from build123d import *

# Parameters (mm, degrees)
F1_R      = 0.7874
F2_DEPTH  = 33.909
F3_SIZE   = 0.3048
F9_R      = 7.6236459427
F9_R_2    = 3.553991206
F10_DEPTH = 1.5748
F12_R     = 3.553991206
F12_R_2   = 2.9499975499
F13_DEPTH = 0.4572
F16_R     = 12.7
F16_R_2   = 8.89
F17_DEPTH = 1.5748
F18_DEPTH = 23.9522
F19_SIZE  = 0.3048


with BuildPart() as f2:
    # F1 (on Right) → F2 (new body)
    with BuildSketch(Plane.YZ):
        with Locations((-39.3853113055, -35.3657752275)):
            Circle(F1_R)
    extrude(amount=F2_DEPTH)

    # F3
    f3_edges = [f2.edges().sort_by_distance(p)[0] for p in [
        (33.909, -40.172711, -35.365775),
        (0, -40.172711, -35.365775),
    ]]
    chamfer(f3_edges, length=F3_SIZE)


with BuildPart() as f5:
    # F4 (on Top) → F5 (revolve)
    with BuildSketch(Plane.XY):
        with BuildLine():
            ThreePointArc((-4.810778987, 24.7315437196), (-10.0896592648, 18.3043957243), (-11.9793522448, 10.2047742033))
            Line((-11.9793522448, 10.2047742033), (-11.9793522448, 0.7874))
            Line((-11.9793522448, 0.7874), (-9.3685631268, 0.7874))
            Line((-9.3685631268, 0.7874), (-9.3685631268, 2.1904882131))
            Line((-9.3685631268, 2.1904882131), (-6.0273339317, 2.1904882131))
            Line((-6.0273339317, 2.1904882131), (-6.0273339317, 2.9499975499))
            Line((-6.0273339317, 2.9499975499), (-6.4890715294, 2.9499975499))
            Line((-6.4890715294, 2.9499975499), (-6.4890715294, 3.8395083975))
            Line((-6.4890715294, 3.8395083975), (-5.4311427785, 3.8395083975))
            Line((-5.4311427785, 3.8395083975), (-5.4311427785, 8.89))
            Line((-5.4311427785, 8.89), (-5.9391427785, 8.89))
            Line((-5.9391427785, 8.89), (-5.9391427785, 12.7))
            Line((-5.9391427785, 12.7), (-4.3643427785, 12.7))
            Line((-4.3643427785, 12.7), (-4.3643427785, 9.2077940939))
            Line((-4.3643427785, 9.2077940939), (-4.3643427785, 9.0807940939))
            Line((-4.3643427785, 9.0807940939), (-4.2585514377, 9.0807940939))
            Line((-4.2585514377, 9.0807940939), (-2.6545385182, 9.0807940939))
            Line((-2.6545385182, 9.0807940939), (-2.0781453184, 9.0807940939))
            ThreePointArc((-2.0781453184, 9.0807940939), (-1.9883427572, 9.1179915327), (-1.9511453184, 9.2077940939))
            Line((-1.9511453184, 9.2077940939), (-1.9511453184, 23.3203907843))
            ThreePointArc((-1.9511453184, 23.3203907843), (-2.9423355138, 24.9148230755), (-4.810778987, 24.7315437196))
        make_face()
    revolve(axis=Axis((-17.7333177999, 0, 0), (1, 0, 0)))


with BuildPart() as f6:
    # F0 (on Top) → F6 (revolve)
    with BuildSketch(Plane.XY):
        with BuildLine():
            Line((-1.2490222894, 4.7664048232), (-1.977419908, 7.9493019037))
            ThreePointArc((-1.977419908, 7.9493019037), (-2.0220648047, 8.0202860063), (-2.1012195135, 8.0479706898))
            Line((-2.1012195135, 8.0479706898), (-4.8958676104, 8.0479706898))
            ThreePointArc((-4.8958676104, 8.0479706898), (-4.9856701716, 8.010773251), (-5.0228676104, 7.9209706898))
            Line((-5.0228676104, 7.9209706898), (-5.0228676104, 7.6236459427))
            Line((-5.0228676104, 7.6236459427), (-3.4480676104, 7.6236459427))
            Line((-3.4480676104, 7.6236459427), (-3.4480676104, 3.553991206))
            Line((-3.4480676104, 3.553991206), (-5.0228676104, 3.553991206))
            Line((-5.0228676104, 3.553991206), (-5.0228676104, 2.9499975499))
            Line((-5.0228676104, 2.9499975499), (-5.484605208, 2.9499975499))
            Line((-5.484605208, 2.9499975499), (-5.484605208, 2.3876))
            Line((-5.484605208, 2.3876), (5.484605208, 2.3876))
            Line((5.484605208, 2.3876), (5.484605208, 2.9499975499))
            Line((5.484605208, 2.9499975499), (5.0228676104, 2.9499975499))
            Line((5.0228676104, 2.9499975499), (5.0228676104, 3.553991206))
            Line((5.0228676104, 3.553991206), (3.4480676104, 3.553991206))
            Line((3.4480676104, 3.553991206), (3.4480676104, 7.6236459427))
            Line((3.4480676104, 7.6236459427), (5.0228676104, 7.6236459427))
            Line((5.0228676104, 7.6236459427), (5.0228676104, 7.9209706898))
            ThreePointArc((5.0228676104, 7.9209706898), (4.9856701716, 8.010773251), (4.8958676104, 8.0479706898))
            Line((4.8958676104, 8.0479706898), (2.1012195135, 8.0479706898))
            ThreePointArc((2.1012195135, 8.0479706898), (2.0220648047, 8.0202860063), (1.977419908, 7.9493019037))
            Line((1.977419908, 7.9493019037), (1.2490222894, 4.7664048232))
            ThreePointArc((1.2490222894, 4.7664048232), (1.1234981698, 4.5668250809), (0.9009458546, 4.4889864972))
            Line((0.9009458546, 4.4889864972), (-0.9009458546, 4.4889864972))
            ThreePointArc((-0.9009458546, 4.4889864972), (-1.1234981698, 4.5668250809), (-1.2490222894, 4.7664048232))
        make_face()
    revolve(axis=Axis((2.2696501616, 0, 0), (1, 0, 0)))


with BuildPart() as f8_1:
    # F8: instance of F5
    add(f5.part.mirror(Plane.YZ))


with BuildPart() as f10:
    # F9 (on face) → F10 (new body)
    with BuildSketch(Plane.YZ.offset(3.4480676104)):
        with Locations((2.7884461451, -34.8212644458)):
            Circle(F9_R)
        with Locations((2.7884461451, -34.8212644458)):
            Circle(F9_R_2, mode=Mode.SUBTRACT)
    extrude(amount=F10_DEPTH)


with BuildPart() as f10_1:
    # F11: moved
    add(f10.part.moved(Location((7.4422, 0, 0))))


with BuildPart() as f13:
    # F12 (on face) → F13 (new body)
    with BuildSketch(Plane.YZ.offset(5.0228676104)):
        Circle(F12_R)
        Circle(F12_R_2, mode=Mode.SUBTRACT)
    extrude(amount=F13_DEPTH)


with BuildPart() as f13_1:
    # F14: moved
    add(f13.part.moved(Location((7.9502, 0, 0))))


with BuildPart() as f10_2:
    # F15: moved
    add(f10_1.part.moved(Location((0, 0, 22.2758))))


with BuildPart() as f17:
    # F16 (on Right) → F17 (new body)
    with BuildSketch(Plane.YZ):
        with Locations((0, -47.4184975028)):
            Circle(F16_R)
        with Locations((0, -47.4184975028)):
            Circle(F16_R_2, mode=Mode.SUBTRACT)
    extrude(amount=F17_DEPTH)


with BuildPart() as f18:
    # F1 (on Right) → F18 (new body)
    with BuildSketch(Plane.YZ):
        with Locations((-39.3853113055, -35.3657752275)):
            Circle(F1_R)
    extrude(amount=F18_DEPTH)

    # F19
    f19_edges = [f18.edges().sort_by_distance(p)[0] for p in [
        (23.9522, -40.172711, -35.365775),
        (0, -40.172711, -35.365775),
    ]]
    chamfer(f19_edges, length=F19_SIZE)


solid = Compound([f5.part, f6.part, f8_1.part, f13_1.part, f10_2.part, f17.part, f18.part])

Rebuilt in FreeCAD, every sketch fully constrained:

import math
import FreeCAD as App
import Part
import Sketcher

V = App.Vector
Q = App.Units.Quantity


def edges_at(feature, points):
    """Names of the edges that pass closest to the given points."""
    edges = feature.Shape.Edges
    near = lambda p: min(range(len(edges)), key=lambda i: edges[i].distToShape(Part.Vertex(*p))[0])
    return sorted({f"Edge{near(p) + 1}" for p in points})

doc = App.newDocument("Part")
body = doc.addObject("PartDesign::Body", "Body")

# Sketch on YZ plane
sketch1 = body.newObject("Sketcher::SketchObject", "Sketch")
sketch1.AttachmentSupport = (doc.getObject("YZ_Plane"), [""])
sketch1.MapMode = "FlatFace"
sketch1.addGeometry(Part.Circle(V(-39.4, -35.4, 0), V(0, 0, 1), 0.8), False)
sketch1.addConstraint([
    Sketcher.Constraint("Diameter", 0, Q("0.062 in")),
    Sketcher.Constraint("DistanceX", 0, 3, -1, 1, 39.385311),
    Sketcher.Constraint("DistanceY", 0, 3, -1, 1, 35.365775),
])
pad1 = body.newObject("PartDesign::Pad", "Pad")
pad1.Profile = sketch1
pad1.Length = Q("1.335 in")
doc.recompute()

chamfer = body.newObject("PartDesign::Chamfer", "Chamfer")
chamfer.Base = (pad1, edges_at(pad1, [(33.909, -40.173, -35.366), (0, -40.173, -35.366)]))
chamfer.Size = Q("0.012 in")
body2 = doc.addObject("PartDesign::Body", "Body001")

# Sketch on XY plane
sketch2 = body2.newObject("Sketcher::SketchObject", "Sketch001")
sketch2.AttachmentSupport = (doc.getObject("XY_Plane001"), [""])
sketch2.MapMode = "FlatFace"
sketch2.addGeometry([
    Part.ArcOfCircle(Part.Circle(V(6.32, 10.2, 0), V(0, 0, 1), 18.3), math.radians(127), math.radians(180)),  # 0
    Part.LineSegment(V(-11.98, 10.2, 0), V(-11.98, 0.79, 0)),  # 1
    Part.LineSegment(V(-11.98, 0.79, 0), V(-9.37, 0.79, 0)),  # 2
    Part.LineSegment(V(-9.37, 0.79, 0), V(-9.37, 2.19, 0)),  # 3
    Part.LineSegment(V(-9.37, 2.19, 0), V(-6.03, 2.19, 0)),  # 4
    Part.LineSegment(V(-6.03, 2.19, 0), V(-6.03, 2.95, 0)),  # 5
    Part.LineSegment(V(-6.03, 2.95, 0), V(-6.49, 2.95, 0)),  # 6
    Part.LineSegment(V(-6.49, 2.95, 0), V(-6.49, 3.84, 0)),  # 7
    Part.LineSegment(V(-6.49, 3.84, 0), V(-5.43, 3.84, 0)),  # 8
    Part.LineSegment(V(-5.43, 3.84, 0), V(-5.43, 8.89, 0)),  # 9
    Part.LineSegment(V(-5.43, 8.89, 0), V(-5.94, 8.89, 0)),  # 10
    Part.LineSegment(V(-5.94, 8.89, 0), V(-5.94, 12.7, 0)),  # 11
    Part.LineSegment(V(-5.94, 12.7, 0), V(-4.36, 12.7, 0)),  # 12
    Part.LineSegment(V(-4.36, 12.7, 0), V(-4.36, 9.08, 0)),  # 13
    Part.LineSegment(V(-4.36, 9.08, 0), V(-2.08, 9.08, 0)),  # 14
    Part.ArcOfCircle(Part.Circle(V(-2.08, 9.21, 0), V(0, 0, 1), 0.13), math.radians(-90), math.radians(0)),  # 15
    Part.LineSegment(V(-1.95, 9.21, 0), V(-1.95, 23.32, 0)),  # 16
    Part.ArcOfCircle(Part.Circle(V(-3.73, 23.32, 0), V(0, 0, 1), 1.78), math.radians(0), math.radians(127)),  # 17
], False)
sketch2.addConstraint([
    Sketcher.Constraint("Tangent", 0, 2, 1, 1),
    Sketcher.Constraint("Coincident", 1, 2, 2, 1),
    Sketcher.Constraint("Coincident", 2, 2, 3, 1),
    Sketcher.Constraint("Coincident", 3, 2, 4, 1),
    Sketcher.Constraint("Coincident", 4, 2, 5, 1),
    Sketcher.Constraint("Coincident", 5, 2, 6, 1),
    Sketcher.Constraint("Coincident", 6, 2, 7, 1),
    Sketcher.Constraint("Coincident", 7, 2, 8, 1),
    Sketcher.Constraint("Coincident", 8, 2, 9, 1),
    Sketcher.Constraint("Coincident", 9, 2, 10, 1),
    Sketcher.Constraint("Coincident", 10, 2, 11, 1),
    Sketcher.Constraint("Coincident", 11, 2, 12, 1),
    Sketcher.Constraint("Coincident", 12, 2, 13, 1),
    Sketcher.Constraint("Coincident", 13, 2, 14, 1),
    Sketcher.Constraint("Tangent", 14, 2, 15, 1),
    Sketcher.Constraint("Tangent", 15, 2, 16, 1),
    Sketcher.Constraint("Tangent", 16, 2, 17, 1),
    Sketcher.Constraint("Tangent", 17, 2, 0, 1),
    Sketcher.Constraint("Vertical", 1),
    Sketcher.Constraint("Horizontal", 2),
    Sketcher.Constraint("Vertical", 3),
    Sketcher.Constraint("Horizontal", 4),
    Sketcher.Constraint("Vertical", 5),
    Sketcher.Constraint("Horizontal", 6),
    Sketcher.Constraint("Vertical", 7),
    Sketcher.Constraint("Horizontal", 8),
    Sketcher.Constraint("Vertical", 9),
    Sketcher.Constraint("Horizontal", 10),
    Sketcher.Constraint("Vertical", 11),
    Sketcher.Constraint("Horizontal", 12),
    Sketcher.Constraint("Vertical", 13),
    Sketcher.Constraint("Horizontal", 14),
    Sketcher.Constraint("Vertical", 16),
    Sketcher.Constraint("Radius", 17, Q("0.07 in")),
    Sketcher.Constraint("Radius", 15, Q("0.005 in")),
    Sketcher.Constraint("DistanceX", 10, 2, 10, 1, Q("0.02 in")),
    Sketcher.Constraint("DistanceY", 11, 1, 11, 2, Q("0.15 in")),
    Sketcher.Constraint("DistanceY", -1, 1, 11, 2, Q("0.5 in")),
    Sketcher.Constraint("DistanceX", 12, 1, 12, 2, Q("0.062 in")),
    Sketcher.Constraint("DistanceY", -1, 1, 1, 2, Q("0.031 in")),
    Sketcher.Constraint("Radius", 0, 18.303187),
    Sketcher.Constraint("DistanceX", 2, 1, 2, 2, 2.610789),
    Sketcher.Constraint("DistanceX", 4, 1, 4, 2, 3.341229),
    Sketcher.Constraint("DistanceX", 8, 1, 8, 2, 1.057929),
    Sketcher.Constraint("DistanceY", 3, 1, 3, 2, 1.403088),
    Sketcher.Constraint("DistanceY", 5, 1, 5, 2, 0.759509),
    Sketcher.Constraint("DistanceY", 7, 1, 7, 2, 0.889511),
    Sketcher.Constraint("DistanceX", 6, 2, 6, 1, 0.461738),
    Sketcher.Constraint("DistanceX", 14, 1, 14, 2, 2.286197),
    Sketcher.Constraint("DistanceY", 1, 2, 1, 1, 9.417374),
    Sketcher.Constraint("DistanceY", 13, 2, 13, 1, 3.619206),
    Sketcher.Constraint("DistanceX", 6, 2, -1, 1, 6.489072),
])
revolution = body2.newObject("PartDesign::Revolution", "Revolution")
revolution.Profile = sketch2
revolution.ReferenceAxis = (sketch2, ["H_Axis"])
revolution.Angle = 360
body3 = doc.addObject("PartDesign::Body", "Body002")

# Sketch on XY plane
sketch3 = body3.newObject("Sketcher::SketchObject", "Sketch002")
sketch3.AttachmentSupport = (doc.getObject("XY_Plane002"), [""])
sketch3.MapMode = "FlatFace"
sketch3.addGeometry([
    Part.LineSegment(V(-1.25, 4.77, 0), V(-1.98, 7.95, 0)),  # 0
    Part.ArcOfCircle(Part.Circle(V(-2.1, 7.92, 0), V(0, 0, 1), 0.13), math.radians(13), math.radians(90)),  # 1
    Part.LineSegment(V(-2.1, 8.05, 0), V(-4.9, 8.05, 0)),  # 2
    Part.ArcOfCircle(Part.Circle(V(-4.9, 7.92, 0), V(0, 0, 1), 0.13), math.radians(90), math.radians(180)),  # 3
    Part.LineSegment(V(-5.02, 7.92, 0), V(-5.02, 7.62, 0)),  # 4
    Part.LineSegment(V(-5.02, 7.62, 0), V(-3.45, 7.62, 0)),  # 5
    Part.LineSegment(V(-3.45, 7.62, 0), V(-3.45, 3.55, 0)),  # 6
    Part.LineSegment(V(-3.45, 3.55, 0), V(-5.02, 3.55, 0)),  # 7
    Part.LineSegment(V(-5.02, 3.55, 0), V(-5.02, 2.95, 0)),  # 8
    Part.LineSegment(V(-5.02, 2.95, 0), V(-5.48, 2.95, 0)),  # 9
    Part.LineSegment(V(-5.48, 2.95, 0), V(-5.48, 2.39, 0)),  # 10
    Part.LineSegment(V(-5.48, 2.39, 0), V(5.48, 2.39, 0)),  # 11
    Part.LineSegment(V(5.48, 2.39, 0), V(5.48, 2.95, 0)),  # 12
    Part.LineSegment(V(5.48, 2.95, 0), V(5.02, 2.95, 0)),  # 13
    Part.LineSegment(V(5.02, 2.95, 0), V(5.02, 3.55, 0)),  # 14
    Part.LineSegment(V(5.02, 3.55, 0), V(3.45, 3.55, 0)),  # 15
    Part.LineSegment(V(3.45, 3.55, 0), V(3.45, 7.62, 0)),  # 16
    Part.LineSegment(V(3.45, 7.62, 0), V(5.02, 7.62, 0)),  # 17
    Part.LineSegment(V(5.02, 7.62, 0), V(5.02, 7.92, 0)),  # 18
    Part.ArcOfCircle(Part.Circle(V(4.9, 7.92, 0), V(0, 0, 1), 0.13), math.radians(0), math.radians(90)),  # 19
    Part.LineSegment(V(4.9, 8.05, 0), V(2.1, 8.05, 0)),  # 20
    Part.ArcOfCircle(Part.Circle(V(2.1, 7.92, 0), V(0, 0, 1), 0.13), math.radians(90), math.radians(167)),  # 21
    Part.LineSegment(V(1.98, 7.95, 0), V(1.25, 4.77, 0)),  # 22
    Part.ArcOfCircle(Part.Circle(V(0.9, 4.85, 0), V(0, 0, 1), 0.36), math.radians(-90), math.radians(-13)),  # 23
    Part.LineSegment(V(0.9, 4.49, 0), V(-0.9, 4.49, 0)),  # 24
    Part.ArcOfCircle(Part.Circle(V(-0.9, 4.85, 0), V(0, 0, 1), 0.36), math.radians(-167), math.radians(-90)),  # 25
], False)
sketch3.addConstraint([
    Sketcher.Constraint("Tangent", 0, 2, 1, 1),
    Sketcher.Constraint("Tangent", 1, 2, 2, 1),
    Sketcher.Constraint("Tangent", 2, 2, 3, 1),
    Sketcher.Constraint("Tangent", 3, 2, 4, 1),
    Sketcher.Constraint("Coincident", 4, 2, 5, 1),
    Sketcher.Constraint("Coincident", 5, 2, 6, 1),
    Sketcher.Constraint("Coincident", 6, 2, 7, 1),
    Sketcher.Constraint("Coincident", 7, 2, 8, 1),
    Sketcher.Constraint("Coincident", 8, 2, 9, 1),
    Sketcher.Constraint("Coincident", 9, 2, 10, 1),
    Sketcher.Constraint("Coincident", 10, 2, 11, 1),
    Sketcher.Constraint("Coincident", 11, 2, 12, 1),
    Sketcher.Constraint("Coincident", 12, 2, 13, 1),
    Sketcher.Constraint("Coincident", 13, 2, 14, 1),
    Sketcher.Constraint("Coincident", 14, 2, 15, 1),
    Sketcher.Constraint("Coincident", 15, 2, 16, 1),
    Sketcher.Constraint("Coincident", 16, 2, 17, 1),
    Sketcher.Constraint("Coincident", 17, 2, 18, 1),
    Sketcher.Constraint("Tangent", 18, 2, 19, 1),
    Sketcher.Constraint("Tangent", 19, 2, 20, 1),
    Sketcher.Constraint("Tangent", 20, 2, 21, 1),
    Sketcher.Constraint("Tangent", 21, 2, 22, 1),
    Sketcher.Constraint("Tangent", 22, 2, 23, 2),
    Sketcher.Constraint("Tangent", 23, 1, 24, 1),
    Sketcher.Constraint("Tangent", 24, 2, 25, 2),
    Sketcher.Constraint("Tangent", 25, 1, 0, 1),
    Sketcher.Constraint("Horizontal", 2),
    Sketcher.Constraint("Vertical", 4),
    Sketcher.Constraint("Horizontal", 5),
    Sketcher.Constraint("Vertical", 6),
    Sketcher.Constraint("Horizontal", 7),
    Sketcher.Constraint("Vertical", 8),
    Sketcher.Constraint("Horizontal", 9),
    Sketcher.Constraint("Vertical", 10),
    Sketcher.Constraint("Horizontal", 11),
    Sketcher.Constraint("Vertical", 12),
    Sketcher.Constraint("Horizontal", 13),
    Sketcher.Constraint("Vertical", 14),
    Sketcher.Constraint("Horizontal", 15),
    Sketcher.Constraint("Vertical", 16),
    Sketcher.Constraint("Horizontal", 17),
    Sketcher.Constraint("Vertical", 18),
    Sketcher.Constraint("Horizontal", 20),
    Sketcher.Constraint("Horizontal", 24),
    Sketcher.Constraint("Equal", 1, 3),
    Sketcher.Constraint("Equal", 3, 19),
    Sketcher.Constraint("Equal", 19, 21),
    Sketcher.Constraint("Equal", 23, 25),
    Sketcher.Constraint("Symmetric", 3, 3, 19, 3, -2),
    Sketcher.Constraint("Symmetric", 9, 2, 12, 2, -2),
    Sketcher.Constraint("Symmetric", 7, 2, 14, 2, -2),
    Sketcher.Constraint("Symmetric", 5, 2, 16, 2, -2),
    Sketcher.Constraint("Symmetric", 0, 2, 21, 2, -2),
    Sketcher.Constraint("Vertical", 4, 2, 7, 2),
    Sketcher.Constraint("Radius", 1, Q("0.005 in")),
    Sketcher.Constraint("DistanceX", 5, 1, 5, 2, Q("0.062 in")),
    Sketcher.Constraint("DistanceY", -1, 1, 10, 2, Q("0.094 in")),
    Sketcher.Constraint("Radius", 23, 0.357075),
    Sketcher.Constraint("DistanceX", 2, 2, 2, 1, 2.794648),
    Sketcher.Constraint("DistanceX", 11, 1, 11, 2, 10.96921),
    Sketcher.Constraint("DistanceX", 24, 2, 24, 1, 1.801892),
    Sketcher.Constraint("DistanceY", -1, 1, 0, 2, 7.949302),
    Sketcher.Constraint("Distance", 0, 3.265179),
    Sketcher.Constraint("DistanceX", 9, 2, 9, 1, 0.461738),
    Sketcher.Constraint("DistanceY", 4, 2, 4, 1, 0.297325),
    Sketcher.Constraint("DistanceY", 6, 2, 6, 1, 4.069655),
    Sketcher.Constraint("DistanceY", 8, 2, 8, 1, 0.603994),
])
revolution2 = body3.newObject("PartDesign::Revolution", "Revolution001")
revolution2.Profile = sketch3
revolution2.ReferenceAxis = (sketch3, ["H_Axis"])
revolution2.Angle = 360
body4 = doc.addObject("PartDesign::Body", "Body003")
doc.recompute()

mirroring = doc.addObject("Part::Mirroring", "Mirroring")
mirroring.Source = body2
mirroring.Base = V(0, 0, 0)
mirroring.Normal = V(1, 0, 0)
body4.BaseFeature = mirroring
doc.recompute()
body5 = doc.addObject("PartDesign::Body", "Body004")

# Sketch on YZ plane
sketch4 = body5.newObject("Sketcher::SketchObject", "Sketch003")
sketch4.AttachmentSupport = (doc.getObject("YZ_Plane004"), [""])
sketch4.MapMode = "FlatFace"
sketch4.AttachmentOffset = App.Placement(V(0, 0, 3.448068), App.Rotation())
sketch4.addGeometry([
    Part.Circle(V(2.8, -34.8, 0), V(0, 0, 1), 7.6),
    Part.Circle(V(2.8, -34.8, 0), V(0, 0, 1), 3.6),
], False)
sketch4.addConstraint([
    Sketcher.Constraint("Coincident", 1, 3, 0, 3),
    Sketcher.Constraint("Diameter", 0, 15.247292),
    Sketcher.Constraint("Diameter", 1, 7.107982),
    Sketcher.Constraint("DistanceX", -1, 1, 0, 3, 2.788446),
    Sketcher.Constraint("DistanceY", 0, 3, -1, 1, 34.821264),
])
pad2 = body5.newObject("PartDesign::Pad", "Pad001")
pad2.Profile = sketch4
pad2.Length = Q("0.062 in")
body6 = doc.addObject("PartDesign::Body", "Body005")
doc.recompute()

body5.Placement = App.Placement(V(7.4422, 0, 0), App.Rotation(V(0, 0, 1), 0))
boolean = body6.newObject("PartDesign::Boolean", "Boolean")
boolean.Type = "Fuse"
boolean.addObjects([body5])
body7 = doc.addObject("PartDesign::Body", "Body006")

# Sketch on YZ plane
sketch5 = body7.newObject("Sketcher::SketchObject", "Sketch004")
sketch5.AttachmentSupport = (doc.getObject("YZ_Plane006"), [""])
sketch5.MapMode = "FlatFace"
sketch5.AttachmentOffset = App.Placement(V(0, 0, 5.022868), App.Rotation())
sketch5.addGeometry([
    Part.Circle(V(0, 0, 0), V(0, 0, 1), 3.6),
    Part.Circle(V(0, 0, 0), V(0, 0, 1), 2.9),
], False)
sketch5.addConstraint([
    Sketcher.Constraint("Coincident", 0, 3, -1, 1),
    Sketcher.Constraint("Coincident", 1, 3, -1, 1),
    Sketcher.Constraint("Diameter", 0, 7.107982),
    Sketcher.Constraint("Diameter", 1, 5.899995),
])
pad3 = body7.newObject("PartDesign::Pad", "Pad002")
pad3.Profile = sketch5
pad3.Length = Q("0.018 in")
body8 = doc.addObject("PartDesign::Body", "Body007")
doc.recompute()

body7.Placement = App.Placement(V(7.9502, 0, 0), App.Rotation(V(0, 0, 1), 0))
boolean2 = body8.newObject("PartDesign::Boolean", "Boolean001")
boolean2.Type = "Fuse"
boolean2.addObjects([body7])
body9 = doc.addObject("PartDesign::Body", "Body008")
doc.recompute()

body6.Placement = App.Placement(V(0, 0, 22.2758), App.Rotation(V(0, 0, 1), 0))
boolean3 = body9.newObject("PartDesign::Boolean", "Boolean002")
boolean3.Type = "Fuse"
boolean3.addObjects([body6])
body10 = doc.addObject("PartDesign::Body", "Body009")

# Sketch on YZ plane
sketch6 = body10.newObject("Sketcher::SketchObject", "Sketch005")
sketch6.AttachmentSupport = (doc.getObject("YZ_Plane009"), [""])
sketch6.MapMode = "FlatFace"
sketch6.addGeometry([
    Part.Circle(V(0, -47, 0), V(0, 0, 1), 13),
    Part.Circle(V(0, -47, 0), V(0, 0, 1), 9),
], False)
sketch6.addConstraint([
    Sketcher.Constraint("Coincident", 1, 3, 0, 3),
    Sketcher.Constraint("PointOnObject", 0, 3, -2),
    Sketcher.Constraint("Diameter", 0, Q("1 in")),
    Sketcher.Constraint("Diameter", 1, Q("0.7 in")),
    Sketcher.Constraint("DistanceY", 0, 3, -1, 1, 47.418498),
])
pad4 = body10.newObject("PartDesign::Pad", "Pad003")
pad4.Profile = sketch6
pad4.Length = Q("0.062 in")
body11 = doc.addObject("PartDesign::Body", "Body010")

# Sketch on YZ plane
sketch7 = body11.newObject("Sketcher::SketchObject", "Sketch006")
sketch7.AttachmentSupport = (doc.getObject("YZ_Plane010"), [""])
sketch7.MapMode = "FlatFace"
sketch7.addGeometry(Part.Circle(V(-39.4, -35.4, 0), V(0, 0, 1), 0.8), False)
sketch7.addConstraint([
    Sketcher.Constraint("Diameter", 0, Q("0.062 in")),
    Sketcher.Constraint("DistanceX", 0, 3, -1, 1, 39.385311),
    Sketcher.Constraint("DistanceY", 0, 3, -1, 1, 35.365775),
])
pad5 = body11.newObject("PartDesign::Pad", "Pad004")
pad5.Profile = sketch7
pad5.Length = Q("0.943 in")
doc.recompute()

chamfer2 = body11.newObject("PartDesign::Chamfer", "Chamfer001")
chamfer2.Base = (pad5, edges_at(pad5, [(23.952, -40.173, -35.366), (0, -40.173, -35.366)]))
chamfer2.Size = Q("0.012 in")
body.Visibility = False
mirroring.Visibility = False

doc.recompute()
